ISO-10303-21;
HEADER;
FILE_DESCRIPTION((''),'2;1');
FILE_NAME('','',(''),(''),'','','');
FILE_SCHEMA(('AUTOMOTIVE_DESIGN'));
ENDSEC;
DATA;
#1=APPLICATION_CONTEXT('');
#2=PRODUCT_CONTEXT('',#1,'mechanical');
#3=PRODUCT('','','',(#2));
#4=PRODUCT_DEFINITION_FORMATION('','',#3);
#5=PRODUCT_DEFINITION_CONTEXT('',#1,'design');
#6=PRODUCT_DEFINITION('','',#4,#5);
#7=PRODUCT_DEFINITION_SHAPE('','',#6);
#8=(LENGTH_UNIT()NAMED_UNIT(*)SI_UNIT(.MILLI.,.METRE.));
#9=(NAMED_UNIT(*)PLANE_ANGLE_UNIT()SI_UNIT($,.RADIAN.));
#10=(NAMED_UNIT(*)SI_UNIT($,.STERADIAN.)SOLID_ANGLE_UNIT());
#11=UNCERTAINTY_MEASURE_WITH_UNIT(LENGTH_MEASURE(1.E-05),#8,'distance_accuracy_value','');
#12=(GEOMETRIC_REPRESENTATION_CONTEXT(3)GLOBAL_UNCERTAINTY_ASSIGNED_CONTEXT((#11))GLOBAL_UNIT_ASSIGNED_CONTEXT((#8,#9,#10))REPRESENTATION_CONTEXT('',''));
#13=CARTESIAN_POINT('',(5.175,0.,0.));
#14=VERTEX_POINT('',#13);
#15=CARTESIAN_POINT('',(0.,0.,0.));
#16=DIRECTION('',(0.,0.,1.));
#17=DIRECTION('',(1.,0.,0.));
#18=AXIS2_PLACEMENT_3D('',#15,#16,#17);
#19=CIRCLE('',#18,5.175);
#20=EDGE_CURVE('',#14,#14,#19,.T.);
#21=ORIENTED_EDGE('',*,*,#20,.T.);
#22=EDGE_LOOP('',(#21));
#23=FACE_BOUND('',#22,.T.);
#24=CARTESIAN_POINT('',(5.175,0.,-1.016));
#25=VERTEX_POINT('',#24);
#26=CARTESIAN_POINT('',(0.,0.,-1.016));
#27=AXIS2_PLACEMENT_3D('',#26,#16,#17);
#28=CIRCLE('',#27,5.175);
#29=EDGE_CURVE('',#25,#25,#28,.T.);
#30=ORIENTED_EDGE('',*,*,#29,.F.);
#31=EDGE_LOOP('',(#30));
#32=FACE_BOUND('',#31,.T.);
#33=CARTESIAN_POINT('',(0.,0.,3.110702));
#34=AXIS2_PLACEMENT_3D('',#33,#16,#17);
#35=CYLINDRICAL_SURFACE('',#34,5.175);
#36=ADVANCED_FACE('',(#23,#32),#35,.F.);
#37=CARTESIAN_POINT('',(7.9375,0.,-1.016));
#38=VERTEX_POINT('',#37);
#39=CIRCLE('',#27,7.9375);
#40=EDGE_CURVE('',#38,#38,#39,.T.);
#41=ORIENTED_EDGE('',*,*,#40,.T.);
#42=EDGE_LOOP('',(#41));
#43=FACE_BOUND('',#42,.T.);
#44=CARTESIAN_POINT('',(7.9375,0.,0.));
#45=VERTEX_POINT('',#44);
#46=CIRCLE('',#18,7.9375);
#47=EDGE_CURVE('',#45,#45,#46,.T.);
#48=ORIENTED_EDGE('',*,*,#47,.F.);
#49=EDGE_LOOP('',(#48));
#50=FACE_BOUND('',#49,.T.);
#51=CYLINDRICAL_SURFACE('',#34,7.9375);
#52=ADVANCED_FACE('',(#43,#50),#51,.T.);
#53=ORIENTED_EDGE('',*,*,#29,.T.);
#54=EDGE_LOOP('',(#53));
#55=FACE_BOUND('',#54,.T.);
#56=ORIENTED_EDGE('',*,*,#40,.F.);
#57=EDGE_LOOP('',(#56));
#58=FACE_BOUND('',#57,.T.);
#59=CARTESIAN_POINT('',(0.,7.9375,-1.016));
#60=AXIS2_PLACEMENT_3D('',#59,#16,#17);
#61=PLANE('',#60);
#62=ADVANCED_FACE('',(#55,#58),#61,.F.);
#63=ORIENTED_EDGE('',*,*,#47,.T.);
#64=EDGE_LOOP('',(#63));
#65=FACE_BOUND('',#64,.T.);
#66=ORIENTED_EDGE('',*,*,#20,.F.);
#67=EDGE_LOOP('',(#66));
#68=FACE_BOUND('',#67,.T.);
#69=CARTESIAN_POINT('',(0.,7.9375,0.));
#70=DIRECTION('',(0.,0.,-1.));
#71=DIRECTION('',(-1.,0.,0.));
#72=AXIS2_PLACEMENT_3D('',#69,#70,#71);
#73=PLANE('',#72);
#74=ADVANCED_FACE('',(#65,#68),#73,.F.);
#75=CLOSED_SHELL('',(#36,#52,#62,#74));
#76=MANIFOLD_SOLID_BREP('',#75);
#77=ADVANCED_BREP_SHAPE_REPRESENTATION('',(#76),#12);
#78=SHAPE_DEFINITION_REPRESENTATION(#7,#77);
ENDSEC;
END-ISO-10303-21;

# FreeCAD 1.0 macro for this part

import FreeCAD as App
import Part
import Sketcher
from FreeCAD import Vector
Q = App.Units.Quantity


def add_polygon(sketch, points):
    """Adds a closed chain of lines whose ends are joined by coincident constraints."""
    first, n = sketch.GeometryCount, len(points)
    for a, b in zip(points, points[1:] + points[:1]):
        sketch.addGeometry(Part.LineSegment(App.Vector(*a, 0), App.Vector(*b, 0)), False)
    for i in range(n):
        sketch.addConstraint(Sketcher.Constraint("Coincident", first + i, 2, first + (i + 1) % n, 1))

doc = App.newDocument("Part")
params = doc.addObject("Spreadsheet::Sheet", "Params")
for row, (alias, value) in enumerate([
    ("sketch1_height", "0.04 in"),
    ("revolution_angle", "360 deg"),
], start=1):
    params.set(f"A{row}", alias)
    params.set(f"B{row}", "=" + value)
    params.setAlias(f"B{row}", alias)

body = doc.addObject("PartDesign::Body", "Body")

sketch1 = body.newObject("Sketcher::SketchObject", "Sketch")
sketch1.AttachmentSupport = (doc.getObject("YZ_Plane"), [""])
sketch1.MapMode = "FlatFace"
add_polygon(sketch1, [(7.9, 0), (5.2, 0), (5.2, -1), (7.9, -1)])
sketch1.addConstraint([
    Sketcher.Constraint("Horizontal", 0),
    Sketcher.Constraint("Vertical", 1),
    Sketcher.Constraint("Horizontal", 2),
    Sketcher.Constraint("Vertical", 3),
    Sketcher.Constraint("PointOnObject", 0, 2, -1),
    Sketcher.Constraint("DistanceY", 1, 2, 1, 1, Q("0.04 in")),
    Sketcher.Constraint("DistanceX", -1, 1, 2, 2, Q("0.3125 in")),
    Sketcher.Constraint("DistanceX", 0, 2, 0, 1, Q("2.7625 mm")),
])
sketch1.setExpression("Constraints[9]", "Params.sketch1_height")
revolution = body.newObject("PartDesign::Revolution", "Revolution")
revolution.Profile = sketch1
revolution.ReferenceAxis = (sketch1, ["V_Axis"])
revolution.setExpression("Angle", "Params.revolution_angle")

doc.recompute()
